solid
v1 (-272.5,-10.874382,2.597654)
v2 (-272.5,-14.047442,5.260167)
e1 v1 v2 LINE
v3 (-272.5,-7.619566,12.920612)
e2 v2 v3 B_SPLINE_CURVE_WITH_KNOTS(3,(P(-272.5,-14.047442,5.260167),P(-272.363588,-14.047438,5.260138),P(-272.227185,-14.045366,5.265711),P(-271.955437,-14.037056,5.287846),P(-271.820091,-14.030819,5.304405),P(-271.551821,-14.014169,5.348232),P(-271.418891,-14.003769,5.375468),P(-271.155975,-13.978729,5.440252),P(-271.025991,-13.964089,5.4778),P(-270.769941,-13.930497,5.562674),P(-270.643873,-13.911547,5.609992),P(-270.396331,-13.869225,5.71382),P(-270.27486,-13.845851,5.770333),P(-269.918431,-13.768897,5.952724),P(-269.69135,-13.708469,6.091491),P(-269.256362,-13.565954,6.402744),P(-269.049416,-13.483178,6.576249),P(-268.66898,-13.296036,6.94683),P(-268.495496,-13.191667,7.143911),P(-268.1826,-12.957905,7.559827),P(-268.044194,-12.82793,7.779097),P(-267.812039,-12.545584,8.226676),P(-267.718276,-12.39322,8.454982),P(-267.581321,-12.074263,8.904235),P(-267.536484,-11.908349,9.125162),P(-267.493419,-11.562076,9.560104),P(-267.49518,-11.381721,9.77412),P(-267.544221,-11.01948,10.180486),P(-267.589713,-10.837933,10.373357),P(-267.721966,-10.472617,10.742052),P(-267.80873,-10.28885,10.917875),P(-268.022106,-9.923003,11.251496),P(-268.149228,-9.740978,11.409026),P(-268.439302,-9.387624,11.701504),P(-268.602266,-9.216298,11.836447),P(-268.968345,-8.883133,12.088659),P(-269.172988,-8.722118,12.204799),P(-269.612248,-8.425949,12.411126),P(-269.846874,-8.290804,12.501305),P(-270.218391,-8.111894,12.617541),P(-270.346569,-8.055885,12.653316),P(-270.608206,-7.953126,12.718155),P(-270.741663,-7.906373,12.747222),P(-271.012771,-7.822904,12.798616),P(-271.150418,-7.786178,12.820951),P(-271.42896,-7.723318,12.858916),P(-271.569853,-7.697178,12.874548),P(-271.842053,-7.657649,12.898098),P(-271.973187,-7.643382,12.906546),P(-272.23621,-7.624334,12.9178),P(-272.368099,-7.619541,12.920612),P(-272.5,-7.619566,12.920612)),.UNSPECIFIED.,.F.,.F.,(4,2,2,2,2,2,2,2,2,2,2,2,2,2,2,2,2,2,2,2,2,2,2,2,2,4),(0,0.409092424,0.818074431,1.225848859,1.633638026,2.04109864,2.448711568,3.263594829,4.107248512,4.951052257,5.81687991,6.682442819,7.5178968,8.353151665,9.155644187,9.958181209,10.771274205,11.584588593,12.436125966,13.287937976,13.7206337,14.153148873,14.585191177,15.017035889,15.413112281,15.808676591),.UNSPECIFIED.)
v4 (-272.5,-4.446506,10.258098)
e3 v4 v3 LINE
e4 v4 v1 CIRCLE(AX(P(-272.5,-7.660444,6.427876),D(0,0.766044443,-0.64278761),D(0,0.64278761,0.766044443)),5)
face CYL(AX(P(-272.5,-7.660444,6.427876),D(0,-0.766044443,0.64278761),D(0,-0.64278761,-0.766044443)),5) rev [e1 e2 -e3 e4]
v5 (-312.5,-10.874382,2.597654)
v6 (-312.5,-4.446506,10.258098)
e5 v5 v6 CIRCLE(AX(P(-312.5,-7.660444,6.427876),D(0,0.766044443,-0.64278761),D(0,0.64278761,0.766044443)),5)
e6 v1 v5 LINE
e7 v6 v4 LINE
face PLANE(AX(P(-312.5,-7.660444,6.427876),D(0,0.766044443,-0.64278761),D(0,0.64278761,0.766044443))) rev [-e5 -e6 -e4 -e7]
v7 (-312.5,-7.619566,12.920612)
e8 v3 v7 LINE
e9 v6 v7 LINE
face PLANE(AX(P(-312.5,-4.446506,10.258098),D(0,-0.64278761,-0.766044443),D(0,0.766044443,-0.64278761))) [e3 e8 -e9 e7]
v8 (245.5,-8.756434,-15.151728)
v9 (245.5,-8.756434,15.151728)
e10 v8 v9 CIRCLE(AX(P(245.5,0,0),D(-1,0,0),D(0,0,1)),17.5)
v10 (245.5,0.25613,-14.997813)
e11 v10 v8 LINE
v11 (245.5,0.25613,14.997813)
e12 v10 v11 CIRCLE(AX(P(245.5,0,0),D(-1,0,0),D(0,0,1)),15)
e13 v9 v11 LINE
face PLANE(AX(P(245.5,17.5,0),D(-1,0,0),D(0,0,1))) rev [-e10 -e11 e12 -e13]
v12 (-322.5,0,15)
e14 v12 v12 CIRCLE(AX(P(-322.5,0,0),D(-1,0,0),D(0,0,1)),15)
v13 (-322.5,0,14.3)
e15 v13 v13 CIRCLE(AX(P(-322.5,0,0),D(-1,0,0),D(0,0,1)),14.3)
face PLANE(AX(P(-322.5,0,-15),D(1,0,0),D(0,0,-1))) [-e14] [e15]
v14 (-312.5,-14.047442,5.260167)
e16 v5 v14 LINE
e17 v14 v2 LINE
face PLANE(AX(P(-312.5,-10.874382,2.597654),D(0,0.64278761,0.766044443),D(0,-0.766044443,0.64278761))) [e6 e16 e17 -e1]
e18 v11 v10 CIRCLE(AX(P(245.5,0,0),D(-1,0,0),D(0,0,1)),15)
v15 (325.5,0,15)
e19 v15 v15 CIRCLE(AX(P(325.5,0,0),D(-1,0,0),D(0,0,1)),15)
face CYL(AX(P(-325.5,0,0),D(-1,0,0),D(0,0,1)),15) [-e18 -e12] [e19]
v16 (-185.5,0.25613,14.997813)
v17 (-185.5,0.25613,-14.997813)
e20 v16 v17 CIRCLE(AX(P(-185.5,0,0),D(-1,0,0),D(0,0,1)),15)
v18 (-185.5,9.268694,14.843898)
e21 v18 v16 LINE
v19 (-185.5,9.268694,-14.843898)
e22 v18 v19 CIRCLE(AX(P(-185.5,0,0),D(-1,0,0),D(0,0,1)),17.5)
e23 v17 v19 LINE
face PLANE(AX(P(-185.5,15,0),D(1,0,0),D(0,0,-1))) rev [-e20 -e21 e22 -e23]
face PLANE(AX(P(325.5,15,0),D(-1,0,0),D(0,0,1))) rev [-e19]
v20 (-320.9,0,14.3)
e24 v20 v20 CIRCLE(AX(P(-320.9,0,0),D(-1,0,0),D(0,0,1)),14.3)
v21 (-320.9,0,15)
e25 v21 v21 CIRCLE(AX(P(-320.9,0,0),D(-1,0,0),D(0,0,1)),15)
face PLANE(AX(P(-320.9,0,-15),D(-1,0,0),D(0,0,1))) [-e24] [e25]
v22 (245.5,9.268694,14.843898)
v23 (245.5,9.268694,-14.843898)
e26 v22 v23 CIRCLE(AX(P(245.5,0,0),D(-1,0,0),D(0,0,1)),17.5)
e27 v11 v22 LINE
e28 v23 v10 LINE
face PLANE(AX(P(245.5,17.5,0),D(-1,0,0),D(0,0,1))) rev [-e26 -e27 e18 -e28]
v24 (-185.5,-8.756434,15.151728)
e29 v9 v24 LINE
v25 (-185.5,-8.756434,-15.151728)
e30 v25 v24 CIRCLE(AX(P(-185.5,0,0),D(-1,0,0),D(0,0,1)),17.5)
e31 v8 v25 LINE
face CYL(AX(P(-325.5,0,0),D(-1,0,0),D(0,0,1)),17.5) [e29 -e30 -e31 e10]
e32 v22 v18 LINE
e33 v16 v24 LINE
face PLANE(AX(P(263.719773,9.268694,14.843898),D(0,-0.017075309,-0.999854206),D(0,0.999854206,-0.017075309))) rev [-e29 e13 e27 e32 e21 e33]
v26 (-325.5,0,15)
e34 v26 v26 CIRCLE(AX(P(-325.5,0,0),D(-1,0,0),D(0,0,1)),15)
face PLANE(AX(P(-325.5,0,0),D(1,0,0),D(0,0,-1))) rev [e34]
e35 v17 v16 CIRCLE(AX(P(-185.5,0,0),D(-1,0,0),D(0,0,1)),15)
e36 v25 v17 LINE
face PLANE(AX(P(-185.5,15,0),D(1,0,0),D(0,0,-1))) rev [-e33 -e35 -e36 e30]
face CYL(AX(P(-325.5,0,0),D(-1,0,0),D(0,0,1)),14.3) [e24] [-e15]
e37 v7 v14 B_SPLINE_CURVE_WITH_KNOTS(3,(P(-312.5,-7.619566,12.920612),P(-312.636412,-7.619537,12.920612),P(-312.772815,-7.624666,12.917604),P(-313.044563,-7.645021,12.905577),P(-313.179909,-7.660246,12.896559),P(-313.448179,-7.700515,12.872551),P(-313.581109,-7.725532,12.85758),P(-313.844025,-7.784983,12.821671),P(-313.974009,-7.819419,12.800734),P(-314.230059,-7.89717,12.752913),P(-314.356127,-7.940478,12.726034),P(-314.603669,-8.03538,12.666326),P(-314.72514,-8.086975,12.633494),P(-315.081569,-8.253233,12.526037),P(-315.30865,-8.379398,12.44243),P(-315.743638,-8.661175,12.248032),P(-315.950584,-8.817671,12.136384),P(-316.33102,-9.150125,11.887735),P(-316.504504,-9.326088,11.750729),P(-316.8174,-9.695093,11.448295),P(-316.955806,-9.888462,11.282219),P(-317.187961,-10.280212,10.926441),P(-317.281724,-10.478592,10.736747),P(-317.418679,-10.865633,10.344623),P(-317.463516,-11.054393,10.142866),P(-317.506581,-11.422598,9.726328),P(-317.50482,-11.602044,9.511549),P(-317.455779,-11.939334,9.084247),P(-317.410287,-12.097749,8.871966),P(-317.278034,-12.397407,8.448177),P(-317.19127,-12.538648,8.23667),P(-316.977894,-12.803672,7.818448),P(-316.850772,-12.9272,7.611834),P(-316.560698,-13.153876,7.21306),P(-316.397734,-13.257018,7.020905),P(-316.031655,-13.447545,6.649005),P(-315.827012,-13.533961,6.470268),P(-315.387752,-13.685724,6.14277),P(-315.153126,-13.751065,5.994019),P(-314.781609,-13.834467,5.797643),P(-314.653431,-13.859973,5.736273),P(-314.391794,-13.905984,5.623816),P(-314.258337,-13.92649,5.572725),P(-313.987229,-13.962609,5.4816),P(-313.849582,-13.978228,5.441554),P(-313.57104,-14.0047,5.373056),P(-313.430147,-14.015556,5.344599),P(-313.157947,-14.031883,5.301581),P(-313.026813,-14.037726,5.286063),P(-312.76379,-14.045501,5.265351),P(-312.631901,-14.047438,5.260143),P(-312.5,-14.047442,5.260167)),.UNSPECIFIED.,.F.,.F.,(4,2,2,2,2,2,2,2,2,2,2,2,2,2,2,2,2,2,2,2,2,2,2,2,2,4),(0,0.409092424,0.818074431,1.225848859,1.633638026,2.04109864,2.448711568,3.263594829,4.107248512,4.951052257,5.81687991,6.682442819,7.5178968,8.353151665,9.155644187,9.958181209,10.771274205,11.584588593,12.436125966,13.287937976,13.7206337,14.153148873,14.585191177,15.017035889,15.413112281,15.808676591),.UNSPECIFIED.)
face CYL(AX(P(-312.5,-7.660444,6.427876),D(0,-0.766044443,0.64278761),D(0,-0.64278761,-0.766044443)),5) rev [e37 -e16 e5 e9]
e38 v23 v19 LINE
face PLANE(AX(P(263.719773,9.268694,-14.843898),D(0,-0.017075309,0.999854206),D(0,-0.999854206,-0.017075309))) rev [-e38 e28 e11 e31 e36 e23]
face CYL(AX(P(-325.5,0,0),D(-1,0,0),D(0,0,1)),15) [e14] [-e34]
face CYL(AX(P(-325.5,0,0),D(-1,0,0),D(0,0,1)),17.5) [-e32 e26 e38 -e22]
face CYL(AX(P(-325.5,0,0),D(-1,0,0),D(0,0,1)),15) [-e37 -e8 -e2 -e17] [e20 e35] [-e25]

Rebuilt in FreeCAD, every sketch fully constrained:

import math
import FreeCAD as App
import Part
import Sketcher

V = App.Vector
Q = App.Units.Quantity

doc = App.newDocument("Part")
body = doc.addObject("PartDesign::Body", "Body")

# Sketch on XY plane
sketch1 = body.newObject("Sketcher::SketchObject", "Sketch")
sketch1.AttachmentSupport = (doc.getObject("XY_Plane"), [""])
sketch1.MapMode = "FlatFace"
sketch1.addGeometry([
    Part.LineSegment(V(-325.5, 0, 0), V(325.5, 0, 0)),  # 0
    Part.LineSegment(V(325.5, 0, 0), V(325.5, 15, 0)),  # 1
    Part.LineSegment(V(325.5, 15, 0), V(245.5, 15, 0)),  # 2
    Part.LineSegment(V(245.5, 15, 0), V(245.5, 17.5, 0)),  # 3
    Part.LineSegment(V(245.5, 17.5, 0), V(-185.5, 17.5, 0)),  # 4
    Part.LineSegment(V(-185.5, 17.5, 0), V(-185.5, 15, 0)),  # 5
    Part.LineSegment(V(-185.5, 15, 0), V(-325.5, 15, 0)),  # 6
    Part.LineSegment(V(-325.5, 15, 0), V(-325.5, 0, 0)),  # 7
], False)
sketch1.addConstraint([
    Sketcher.Constraint("Coincident", 0, 2, 1, 1),
    Sketcher.Constraint("Coincident", 1, 2, 2, 1),
    Sketcher.Constraint("Coincident", 2, 2, 3, 1),
    Sketcher.Constraint("Coincident", 3, 2, 4, 1),
    Sketcher.Constraint("Coincident", 4, 2, 5, 1),
    Sketcher.Constraint("Coincident", 5, 2, 6, 1),
    Sketcher.Constraint("Coincident", 6, 2, 7, 1),
    Sketcher.Constraint("Coincident", 7, 2, 0, 1),
    Sketcher.Constraint("Horizontal", 0),
    Sketcher.Constraint("Vertical", 1),
    Sketcher.Constraint("Horizontal", 2),
    Sketcher.Constraint("Vertical", 3),
    Sketcher.Constraint("Horizontal", 4),
    Sketcher.Constraint("Vertical", 5),
    Sketcher.Constraint("Horizontal", 6),
    Sketcher.Constraint("Vertical", 7),
    Sketcher.Constraint("Symmetric", 0, 2, 7, 2, -1, 1),
    Sketcher.Constraint("Horizontal", 2, 2, 5, 2),
    Sketcher.Constraint("DistanceX", 0, 1, 0, 2, Q("651 mm")),
    Sketcher.Constraint("DistanceX", 2, 2, 2, 1, Q("80 mm")),
    Sketcher.Constraint("DistanceX", 4, 2, 4, 1, Q("431 mm")),
    Sketcher.Constraint("DistanceY", 1, 1, 1, 2, Q("15 mm")),
    Sketcher.Constraint("DistanceY", 3, 1, 3, 2, Q("2.5 mm")),
])
revolution = body.newObject("PartDesign::Revolution", "Revolution")
revolution.Profile = sketch1
revolution.ReferenceAxis = (sketch1, ["H_Axis"])
revolution.Angle = 360

# Sketch on YZ plane
sketch2 = body.newObject("Sketcher::SketchObject", "Sketch001")
sketch2.AttachmentSupport = (doc.getObject("YZ_Plane"), [""])
sketch2.MapMode = "FlatFace"
sketch2.AttachmentOffset = App.Placement(V(0, 0, -185.5), App.Rotation())
sketch2.addGeometry([
    Part.LineSegment(V(-8.756434, -15.151728, 0), V(9.268694, -14.843898, 0)),
    Part.ArcOfCircle(Part.Circle(V(0, 0, 0), V(0, 0, 1), 17.5), math.radians(-120.024328), math.radians(-58.01889)),
    Part.LineSegment(V(9.268694, 14.843898, 0), V(-8.756434, 15.151728, 0)),
    Part.ArcOfCircle(Part.Circle(V(0, 0, 0), V(0, 0, 1), 17.5), math.radians(58.01889), math.radians(120.024328)),
], False)
sketch2.addConstraint([
    Sketcher.Constraint("Coincident", 0, 1, 1, 1),
    Sketcher.Constraint("Coincident", 1, 2, 0, 2),
    Sketcher.Constraint("Coincident", 2, 1, 3, 1),
    Sketcher.Constraint("Coincident", 3, 2, 2, 2),
    Sketcher.Constraint("Coincident", 1, 3, -1, 1),
    Sketcher.Constraint("Coincident", 3, 3, -1, 1),
    Sketcher.Constraint("Equal", 1, 3),
    Sketcher.Constraint("Vertical", 1, 2, 2, 1),
    Sketcher.Constraint("Vertical", 0, 1, 3, 2),
    Sketcher.Constraint("Radius", 1, Q("17.5 mm")),
    Sketcher.Constraint("DistanceY", 1, 2, -1, 1, Q("14.843898 mm")),
    Sketcher.Constraint("DistanceX", 0, 1, 1, 2, Q("18.025128 mm")),
])
pocket1 = body.newObject("PartDesign::Pocket", "Pocket")
pocket1.Profile = sketch2
pocket1.Length = 431
pocket1.Reversed = True

# Sketch on XZ plane
sketch3 = body.newObject("Sketcher::SketchObject", "Sketch002")
sketch3.AttachmentSupport = (doc.getObject("XZ_Plane"), [""])
sketch3.MapMode = "FlatFace"
sketch3.addGeometry([
    Part.LineSegment(V(-322.5, -15, 0), V(-322.5, -14.3, 0)),
    Part.LineSegment(V(-322.5, -14.3, 0), V(-320.9, -14.3, 0)),
    Part.LineSegment(V(-320.9, -14.3, 0), V(-320.9, -15, 0)),
    Part.LineSegment(V(-320.9, -15, 0), V(-322.5, -15, 0)),
], False)
sketch3.addConstraint([
    Sketcher.Constraint("Coincident", 0, 2, 1, 1),
    Sketcher.Constraint("Coincident", 1, 2, 2, 1),
    Sketcher.Constraint("Coincident", 2, 2, 3, 1),
    Sketcher.Constraint("Coincident", 3, 2, 0, 1),
    Sketcher.Constraint("Vertical", 0),
    Sketcher.Constraint("Horizontal", 1),
    Sketcher.Constraint("Vertical", 2),
    Sketcher.Constraint("Horizontal", 3),
    Sketcher.Constraint("DistanceX", 1, 1, 1, 2, Q("1.6 mm")),
    Sketcher.Constraint("DistanceY", 0, 1, 0, 2, Q("0.7 mm")),
    Sketcher.Constraint("DistanceY", 2, 2, -1, 1, Q("15 mm")),
    Sketcher.Constraint("DistanceX", 0, 2, -1, 1, Q("322.5 mm")),
])
groove = body.newObject("PartDesign::Groove", "Groove")
groove.Profile = sketch3
groove.ReferenceAxis = (sketch3, ["H_Axis"])
groove.Angle = 360

# Sketch on an angled plane
sketch4 = body.newObject("Sketcher::SketchObject", "Sketch003")
sketch4.Placement = App.Placement(V(0, -11.490667, 9.641814), App.Rotation(V(0, -0.64278761, -0.766044443), V(-1, 0, 0), V(0, 0.766044443, -0.64278761), "ZXY"))
sketch4.addGeometry([
    Part.LineSegment(V(5, 272.5, 0), V(5, 312.5, 0)),
    Part.ArcOfCircle(Part.Circle(V(0, 312.5, 0), V(0, 0, 1), 5), math.radians(0), math.radians(180)),
    Part.LineSegment(V(-5, 312.5, 0), V(-5, 272.5, 0)),
    Part.ArcOfCircle(Part.Circle(V(0, 272.5, 0), V(0, 0, 1), 5), math.radians(180), math.radians(360)),
], False)
sketch4.addConstraint([
    Sketcher.Constraint("Tangent", 0, 2, 1, 1),
    Sketcher.Constraint("Tangent", 1, 2, 2, 1),
    Sketcher.Constraint("Tangent", 2, 2, 3, 1),
    Sketcher.Constraint("Tangent", 3, 2, 0, 1),
    Sketcher.Constraint("Vertical", 0),
    Sketcher.Constraint("Vertical", 2),
    Sketcher.Constraint("PointOnObject", 1, 3, -2),
    Sketcher.Constraint("Radius", 1, Q("5 mm")),
    Sketcher.Constraint("DistanceY", 0, 1, 0, 2, Q("40 mm")),
    Sketcher.Constraint("DistanceY", -1, 1, 1, 3, Q("312.5 mm")),
])
pocket2 = body.newObject("PartDesign::Pocket", "Pocket001")
pocket2.Profile = sketch4
pocket2.Length = 5
pocket2.Reversed = True

doc.recompute()
